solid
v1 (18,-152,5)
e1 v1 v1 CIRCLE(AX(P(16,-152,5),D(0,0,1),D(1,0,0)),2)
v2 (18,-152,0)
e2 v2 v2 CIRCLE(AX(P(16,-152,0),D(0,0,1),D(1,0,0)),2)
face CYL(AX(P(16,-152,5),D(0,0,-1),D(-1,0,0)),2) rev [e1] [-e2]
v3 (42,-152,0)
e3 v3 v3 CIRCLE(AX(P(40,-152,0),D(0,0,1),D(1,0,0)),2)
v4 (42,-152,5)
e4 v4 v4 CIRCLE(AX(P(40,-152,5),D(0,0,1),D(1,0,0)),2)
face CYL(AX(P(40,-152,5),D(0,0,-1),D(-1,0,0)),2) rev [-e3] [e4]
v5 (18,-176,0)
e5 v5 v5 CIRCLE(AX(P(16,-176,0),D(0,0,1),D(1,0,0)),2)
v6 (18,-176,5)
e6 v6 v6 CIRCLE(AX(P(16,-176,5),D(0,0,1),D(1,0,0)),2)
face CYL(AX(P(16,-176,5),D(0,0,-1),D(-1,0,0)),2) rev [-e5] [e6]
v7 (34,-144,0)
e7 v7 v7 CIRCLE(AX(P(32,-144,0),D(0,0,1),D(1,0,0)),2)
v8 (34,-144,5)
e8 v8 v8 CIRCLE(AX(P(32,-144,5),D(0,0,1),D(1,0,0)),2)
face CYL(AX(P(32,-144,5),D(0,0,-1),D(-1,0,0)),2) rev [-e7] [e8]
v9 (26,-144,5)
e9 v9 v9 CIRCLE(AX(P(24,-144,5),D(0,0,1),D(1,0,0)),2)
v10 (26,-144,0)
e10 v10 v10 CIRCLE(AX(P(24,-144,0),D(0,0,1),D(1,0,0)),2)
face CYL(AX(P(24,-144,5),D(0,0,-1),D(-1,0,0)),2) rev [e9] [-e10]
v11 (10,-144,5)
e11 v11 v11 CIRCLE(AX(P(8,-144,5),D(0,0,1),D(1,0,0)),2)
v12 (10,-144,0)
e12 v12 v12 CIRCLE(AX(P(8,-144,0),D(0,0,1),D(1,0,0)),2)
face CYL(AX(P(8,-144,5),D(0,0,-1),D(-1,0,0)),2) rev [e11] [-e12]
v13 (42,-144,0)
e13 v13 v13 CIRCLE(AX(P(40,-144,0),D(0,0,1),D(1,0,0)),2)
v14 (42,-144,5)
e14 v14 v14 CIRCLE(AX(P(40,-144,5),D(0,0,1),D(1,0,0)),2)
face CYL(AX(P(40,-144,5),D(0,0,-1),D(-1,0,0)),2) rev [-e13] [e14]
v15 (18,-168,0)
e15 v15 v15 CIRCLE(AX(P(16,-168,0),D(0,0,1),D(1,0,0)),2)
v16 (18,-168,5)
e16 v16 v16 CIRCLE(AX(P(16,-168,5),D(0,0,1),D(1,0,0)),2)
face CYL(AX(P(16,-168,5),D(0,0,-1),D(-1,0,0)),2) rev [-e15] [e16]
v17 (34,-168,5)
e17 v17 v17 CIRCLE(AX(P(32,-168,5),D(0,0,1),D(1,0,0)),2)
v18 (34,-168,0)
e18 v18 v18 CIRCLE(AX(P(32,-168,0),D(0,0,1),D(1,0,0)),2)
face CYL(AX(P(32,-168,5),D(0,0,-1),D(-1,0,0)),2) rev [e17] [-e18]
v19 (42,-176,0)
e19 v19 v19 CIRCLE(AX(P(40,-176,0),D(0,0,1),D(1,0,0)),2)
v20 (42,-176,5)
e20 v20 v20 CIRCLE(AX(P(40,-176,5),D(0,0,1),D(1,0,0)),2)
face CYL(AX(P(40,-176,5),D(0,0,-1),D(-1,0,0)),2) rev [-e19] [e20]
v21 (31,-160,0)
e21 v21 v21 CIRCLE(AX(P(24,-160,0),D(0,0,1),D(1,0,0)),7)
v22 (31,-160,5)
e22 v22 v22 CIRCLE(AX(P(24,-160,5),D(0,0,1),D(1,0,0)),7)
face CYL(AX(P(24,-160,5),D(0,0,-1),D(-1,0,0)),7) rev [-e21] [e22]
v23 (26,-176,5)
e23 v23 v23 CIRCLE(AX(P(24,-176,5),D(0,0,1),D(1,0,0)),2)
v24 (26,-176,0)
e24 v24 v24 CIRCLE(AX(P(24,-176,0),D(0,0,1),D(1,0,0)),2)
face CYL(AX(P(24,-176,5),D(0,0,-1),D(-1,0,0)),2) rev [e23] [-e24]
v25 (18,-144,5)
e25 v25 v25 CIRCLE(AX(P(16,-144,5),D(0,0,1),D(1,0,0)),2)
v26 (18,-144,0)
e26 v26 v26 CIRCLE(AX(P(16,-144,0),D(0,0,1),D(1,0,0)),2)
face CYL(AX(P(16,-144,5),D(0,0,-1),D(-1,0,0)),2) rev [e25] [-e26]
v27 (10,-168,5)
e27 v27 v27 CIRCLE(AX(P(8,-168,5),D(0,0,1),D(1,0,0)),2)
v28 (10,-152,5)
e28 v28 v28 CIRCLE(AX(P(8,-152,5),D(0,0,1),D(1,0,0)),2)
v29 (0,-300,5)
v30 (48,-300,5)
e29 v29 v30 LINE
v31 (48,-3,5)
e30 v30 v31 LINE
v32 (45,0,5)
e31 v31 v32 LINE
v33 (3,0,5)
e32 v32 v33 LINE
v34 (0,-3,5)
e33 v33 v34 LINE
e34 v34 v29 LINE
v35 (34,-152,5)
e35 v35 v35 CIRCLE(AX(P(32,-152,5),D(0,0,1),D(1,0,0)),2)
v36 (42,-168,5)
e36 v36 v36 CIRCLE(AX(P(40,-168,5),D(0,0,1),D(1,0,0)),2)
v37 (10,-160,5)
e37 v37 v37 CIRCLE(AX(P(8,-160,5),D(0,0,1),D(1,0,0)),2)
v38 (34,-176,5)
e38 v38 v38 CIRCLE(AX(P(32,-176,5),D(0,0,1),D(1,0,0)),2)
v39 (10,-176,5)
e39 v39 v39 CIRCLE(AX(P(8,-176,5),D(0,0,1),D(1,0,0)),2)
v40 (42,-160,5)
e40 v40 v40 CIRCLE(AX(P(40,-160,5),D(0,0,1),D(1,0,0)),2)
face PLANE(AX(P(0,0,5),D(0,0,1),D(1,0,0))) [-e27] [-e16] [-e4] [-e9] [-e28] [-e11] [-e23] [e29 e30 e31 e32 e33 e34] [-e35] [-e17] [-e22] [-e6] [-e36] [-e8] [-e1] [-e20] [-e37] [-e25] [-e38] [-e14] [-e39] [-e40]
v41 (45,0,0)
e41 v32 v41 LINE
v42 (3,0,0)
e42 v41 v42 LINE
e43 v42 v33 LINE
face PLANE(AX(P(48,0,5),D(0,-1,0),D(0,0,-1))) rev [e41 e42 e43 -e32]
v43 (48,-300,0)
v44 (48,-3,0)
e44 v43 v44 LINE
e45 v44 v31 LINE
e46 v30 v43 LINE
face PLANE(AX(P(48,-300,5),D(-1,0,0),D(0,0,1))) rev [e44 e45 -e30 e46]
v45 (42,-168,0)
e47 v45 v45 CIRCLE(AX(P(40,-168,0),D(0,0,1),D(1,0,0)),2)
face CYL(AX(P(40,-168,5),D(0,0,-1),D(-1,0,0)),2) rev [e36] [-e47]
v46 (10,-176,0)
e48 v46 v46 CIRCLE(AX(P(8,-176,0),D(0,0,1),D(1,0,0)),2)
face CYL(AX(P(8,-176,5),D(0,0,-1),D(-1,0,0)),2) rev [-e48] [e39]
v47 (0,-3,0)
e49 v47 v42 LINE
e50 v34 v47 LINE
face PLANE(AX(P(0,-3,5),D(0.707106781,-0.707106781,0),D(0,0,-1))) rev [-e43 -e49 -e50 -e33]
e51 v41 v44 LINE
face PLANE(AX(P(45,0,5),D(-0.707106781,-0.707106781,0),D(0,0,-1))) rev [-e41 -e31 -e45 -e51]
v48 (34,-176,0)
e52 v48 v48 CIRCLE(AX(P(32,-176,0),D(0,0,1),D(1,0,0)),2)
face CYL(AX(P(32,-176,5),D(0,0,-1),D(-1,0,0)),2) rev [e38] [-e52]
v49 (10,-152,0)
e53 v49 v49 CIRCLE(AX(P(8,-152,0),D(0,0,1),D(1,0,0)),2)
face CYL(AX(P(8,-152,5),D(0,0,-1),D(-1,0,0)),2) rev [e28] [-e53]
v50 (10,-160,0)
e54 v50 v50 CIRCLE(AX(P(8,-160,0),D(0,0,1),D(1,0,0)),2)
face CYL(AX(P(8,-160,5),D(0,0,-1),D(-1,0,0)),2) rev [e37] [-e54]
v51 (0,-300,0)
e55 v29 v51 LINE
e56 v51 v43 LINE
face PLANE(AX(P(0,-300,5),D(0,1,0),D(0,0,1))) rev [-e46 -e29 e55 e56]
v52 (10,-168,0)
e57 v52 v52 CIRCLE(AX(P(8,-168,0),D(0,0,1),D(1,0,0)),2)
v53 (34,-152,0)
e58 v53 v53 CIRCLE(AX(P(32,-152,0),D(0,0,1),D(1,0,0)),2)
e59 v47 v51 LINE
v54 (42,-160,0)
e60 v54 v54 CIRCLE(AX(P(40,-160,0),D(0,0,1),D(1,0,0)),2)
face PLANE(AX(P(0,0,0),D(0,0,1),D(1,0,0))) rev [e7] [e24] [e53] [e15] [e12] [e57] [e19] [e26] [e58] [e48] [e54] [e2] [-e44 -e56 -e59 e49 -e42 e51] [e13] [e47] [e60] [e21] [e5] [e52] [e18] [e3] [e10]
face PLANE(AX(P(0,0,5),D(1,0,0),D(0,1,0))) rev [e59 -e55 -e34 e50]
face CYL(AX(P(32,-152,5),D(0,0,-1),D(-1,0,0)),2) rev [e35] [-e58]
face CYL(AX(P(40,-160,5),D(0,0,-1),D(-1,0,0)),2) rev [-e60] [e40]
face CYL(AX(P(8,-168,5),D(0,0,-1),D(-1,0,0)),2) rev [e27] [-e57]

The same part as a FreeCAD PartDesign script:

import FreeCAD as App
import Part
import Sketcher
Q = App.Units.Quantity


def edges_at(feature, points):
    """Names of the edges that pass closest to the given points."""
    edges = feature.Shape.Edges
    near = lambda p: min(range(len(edges)), key=lambda i: edges[i].distToShape(Part.Vertex(*p))[0])
    return sorted({f"Edge{near(p) + 1}" for p in points})

doc = App.newDocument("Part")
body = doc.addObject("PartDesign::Body", "Body")

# Sketch on XY plane
sketch1 = body.newObject("Sketcher::SketchObject", "Sketch")
sketch1.AttachmentSupport = (doc.getObject("XY_Plane"), [""])
sketch1.MapMode = "FlatFace"
sketch1.addGeometry([
    Part.LineSegment(App.Vector(0, 0, 0), App.Vector(0, -300, 0)),  # 0
    Part.LineSegment(App.Vector(0, -300, 0), App.Vector(48, -300, 0)),  # 1
    Part.LineSegment(App.Vector(48, -300, 0), App.Vector(48, 0, 0)),  # 2
    Part.LineSegment(App.Vector(48, 0, 0), App.Vector(0, 0, 0)),  # 3
    Part.Circle(App.Vector(8, -176, 0), App.Vector(0, 0, 1), 2),  # 4
    Part.Circle(App.Vector(16, -176, 0), App.Vector(0, 0, 1), 2),  # 5
    Part.Circle(App.Vector(8, -168, 0), App.Vector(0, 0, 1), 2),  # 6
    Part.Circle(App.Vector(16, -168, 0), App.Vector(0, 0, 1), 2),  # 7
    Part.Circle(App.Vector(24, -176, 0), App.Vector(0, 0, 1), 2),  # 8
    Part.Circle(App.Vector(32, -176, 0), App.Vector(0, 0, 1), 2),  # 9
    Part.Circle(App.Vector(40, -176, 0), App.Vector(0, 0, 1), 2),  # 10
    Part.Circle(App.Vector(32, -168, 0), App.Vector(0, 0, 1), 2),  # 11
    Part.Circle(App.Vector(40, -168, 0), App.Vector(0, 0, 1), 2),  # 12
    Part.Circle(App.Vector(8, -160, 0), App.Vector(0, 0, 1), 2),  # 13
    Part.Circle(App.Vector(8, -152, 0), App.Vector(0, 0, 1), 2),  # 14
    Part.Circle(App.Vector(16, -152, 0), App.Vector(0, 0, 1), 2),  # 15
    Part.Circle(App.Vector(8, -144, 0), App.Vector(0, 0, 1), 2),  # 16
    Part.Circle(App.Vector(16, -144, 0), App.Vector(0, 0, 1), 2),  # 17
    Part.Circle(App.Vector(24, -160, 0), App.Vector(0, 0, 1), 7),  # 18
    Part.Circle(App.Vector(32, -152, 0), App.Vector(0, 0, 1), 2),  # 19
    Part.Circle(App.Vector(40, -160, 0), App.Vector(0, 0, 1), 2),  # 20
    Part.Circle(App.Vector(40, -152, 0), App.Vector(0, 0, 1), 2),  # 21
    Part.Circle(App.Vector(24, -144, 0), App.Vector(0, 0, 1), 2),  # 22
    Part.Circle(App.Vector(32, -144, 0), App.Vector(0, 0, 1), 2),  # 23
    Part.Circle(App.Vector(40, -144, 0), App.Vector(0, 0, 1), 2),  # 24
], False)
sketch1.addConstraint([
    Sketcher.Constraint("Coincident", 0, 2, 1, 1),
    Sketcher.Constraint("Coincident", 1, 2, 2, 1),
    Sketcher.Constraint("Coincident", 2, 2, 3, 1),
    Sketcher.Constraint("Coincident", 3, 2, 0, 1),
    Sketcher.Constraint("Vertical", 0),
    Sketcher.Constraint("Horizontal", 1),
    Sketcher.Constraint("Vertical", 2),
    Sketcher.Constraint("Horizontal", 3),
    Sketcher.Constraint("Coincident", 3, 2, -1, 1),
    Sketcher.Constraint("Equal", 4, 5),
    Sketcher.Constraint("Equal", 5, 6),
    Sketcher.Constraint("Equal", 6, 7),
    Sketcher.Constraint("Equal", 7, 8),
    Sketcher.Constraint("Equal", 8, 9),
    Sketcher.Constraint("Equal", 9, 10),
    Sketcher.Constraint("Equal", 10, 11),
    Sketcher.Constraint("Equal", 11, 12),
    Sketcher.Constraint("Equal", 12, 13),
    Sketcher.Constraint("Equal", 13, 14),
    Sketcher.Constraint("Equal", 14, 15),
    Sketcher.Constraint("Equal", 15, 16),
    Sketcher.Constraint("Equal", 16, 17),
    Sketcher.Constraint("Equal", 17, 19),
    Sketcher.Constraint("Equal", 19, 20),
    Sketcher.Constraint("Equal", 20, 21),
    Sketcher.Constraint("Equal", 21, 22),
    Sketcher.Constraint("Equal", 22, 23),
    Sketcher.Constraint("Equal", 23, 24),
    Sketcher.Constraint("Horizontal", 4, 3, 5, 3),
    Sketcher.Constraint("Horizontal", 6, 3, 7, 3),
    Sketcher.Constraint("Horizontal", 5, 3, 8, 3),
    Sketcher.Constraint("Horizontal", 8, 3, 9, 3),
    Sketcher.Constraint("Horizontal", 9, 3, 10, 3),
    Sketcher.Constraint("Horizontal", 7, 3, 11, 3),
    Sketcher.Constraint("Horizontal", 11, 3, 12, 3),
    Sketcher.Constraint("Horizontal", 14, 3, 15, 3),
    Sketcher.Constraint("Horizontal", 16, 3, 17, 3),
    Sketcher.Constraint("Horizontal", 13, 3, 18, 3),
    Sketcher.Constraint("Horizontal", 15, 3, 19, 3),
    Sketcher.Constraint("Horizontal", 18, 3, 20, 3),
    Sketcher.Constraint("Horizontal", 19, 3, 21, 3),
    Sketcher.Constraint("Horizontal", 17, 3, 22, 3),
    Sketcher.Constraint("Horizontal", 22, 3, 23, 3),
    Sketcher.Constraint("Horizontal", 23, 3, 24, 3),
    Sketcher.Constraint("Vertical", 4, 3, 6, 3),
    Sketcher.Constraint("Vertical", 5, 3, 7, 3),
    Sketcher.Constraint("Vertical", 9, 3, 11, 3),
    Sketcher.Constraint("Vertical", 10, 3, 12, 3),
    Sketcher.Constraint("Vertical", 6, 3, 13, 3),
    Sketcher.Constraint("Vertical", 13, 3, 14, 3),
    Sketcher.Constraint("Vertical", 7, 3, 15, 3),
    Sketcher.Constraint("Vertical", 14, 3, 16, 3),
    Sketcher.Constraint("Vertical", 15, 3, 17, 3),
    Sketcher.Constraint("Vertical", 8, 3, 18, 3),
    Sketcher.Constraint("Vertical", 11, 3, 19, 3),
    Sketcher.Constraint("Vertical", 12, 3, 20, 3),
    Sketcher.Constraint("Vertical", 20, 3, 21, 3),
    Sketcher.Constraint("Vertical", 18, 3, 22, 3),
    Sketcher.Constraint("Vertical", 19, 3, 23, 3),
    Sketcher.Constraint("Vertical", 21, 3, 24, 3),
    Sketcher.Constraint("Diameter", 4, Q("4 mm")),
    Sketcher.Constraint("Diameter", 18, Q("14 mm")),
    Sketcher.Constraint("DistanceX", 1, 1, 1, 2, Q("48 mm")),
    Sketcher.Constraint("DistanceY", 0, 2, 0, 1, Q("300 mm")),
    Sketcher.Constraint("DistanceX", -1, 1, 4, 3, Q("8 mm")),
    Sketcher.Constraint("DistanceY", 4, 3, -1, 1, Q("176 mm")),
    Sketcher.Constraint("DistanceX", -1, 1, 5, 3, Q("16 mm")),
    Sketcher.Constraint("DistanceY", 6, 3, -1, 1, Q("168 mm")),
    Sketcher.Constraint("DistanceX", -1, 1, 8, 3, Q("24 mm")),
    Sketcher.Constraint("DistanceX", -1, 1, 9, 3, Q("32 mm")),
    Sketcher.Constraint("DistanceX", -1, 1, 10, 3, Q("40 mm")),
    Sketcher.Constraint("DistanceY", 13, 3, -1, 1, Q("160 mm")),
    Sketcher.Constraint("DistanceY", 14, 3, -1, 1, Q("152 mm")),
    Sketcher.Constraint("DistanceY", 16, 3, -1, 1, Q("144 mm")),
])
pad1 = body.newObject("PartDesign::Pad", "Pad")
pad1.Profile = sketch1
pad1.Length = 5
doc.recompute()

chamfer = body.newObject("PartDesign::Chamfer", "Chamfer")
chamfer.Base = (pad1, edges_at(pad1, [(48, 0, 2.5), (0, 0, 2.5)]))
chamfer.Size = 3

doc.recompute()
